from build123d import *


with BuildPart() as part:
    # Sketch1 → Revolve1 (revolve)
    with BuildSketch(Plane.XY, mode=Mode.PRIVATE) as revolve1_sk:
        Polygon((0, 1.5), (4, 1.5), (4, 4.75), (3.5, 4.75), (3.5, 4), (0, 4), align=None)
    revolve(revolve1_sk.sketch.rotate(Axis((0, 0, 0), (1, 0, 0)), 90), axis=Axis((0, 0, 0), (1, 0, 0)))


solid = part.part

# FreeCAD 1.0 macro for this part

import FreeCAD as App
import Part
import Sketcher
from FreeCAD import Vector
Q = App.Units.Quantity


def add_polygon(sketch, points):
    """Adds a closed chain of lines whose ends are joined by coincident constraints."""
    first, n = sketch.GeometryCount, len(points)
    for a, b in zip(points, points[1:] + points[:1]):
        sketch.addGeometry(Part.LineSegment(App.Vector(*a, 0), App.Vector(*b, 0)), False)
    for i in range(n):
        sketch.addConstraint(Sketcher.Constraint("Coincident", first + i, 2, first + (i + 1) % n, 1))

doc = App.newDocument("Part")
params = doc.addObject("Spreadsheet::Sheet", "Params")
for row, (alias, value) in enumerate([
    ("sketch1_width", "4 mm"),
    ("sketch1_width2", "0.5 mm"),
    ("sketch1_height", "2.5 mm"),
    ("sketch1_height2", "3.25 mm"),
    ("revolution_angle", "360 deg"),
], start=1):
    params.set(f"A{row}", alias)
    params.set(f"B{row}", "=" + value)
    params.setAlias(f"B{row}", alias)

body = doc.addObject("PartDesign::Body", "Body")

# Sketch on XY plane
sketch1 = body.newObject("Sketcher::SketchObject", "Sketch")
sketch1.AttachmentSupport = (doc.getObject("XY_Plane"), [""])
sketch1.MapMode = "FlatFace"
add_polygon(sketch1, [(0, 1.5), (4, 1.5), (4, 4.75), (3.5, 4.75), (3.5, 4), (0, 4)])  # lines 0-5
sketch1.addConstraint([
    Sketcher.Constraint("Horizontal", 0),
    Sketcher.Constraint("Vertical", 1),
    Sketcher.Constraint("Horizontal", 2),
    Sketcher.Constraint("Vertical", 3),
    Sketcher.Constraint("Horizontal", 4),
    Sketcher.Constraint("Vertical", 5),
    Sketcher.Constraint("PointOnObject", 4, 2, -2),
    Sketcher.Constraint("DistanceX", 0, 1, 0, 2, Q("4 mm")),
    Sketcher.Constraint("DistanceX", 2, 2, 2, 1, Q("0.5 mm")),
    Sketcher.Constraint("DistanceY", 5, 2, 5, 1, Q("2.5 mm")),
    Sketcher.Constraint("DistanceY", -1, 1, 3, 2, Q("4 mm")),
    Sketcher.Constraint("DistanceY", 1, 1, 1, 2, Q("3.25 mm")),
])
sketch1.setExpression("Constraints[13]", "Params.sketch1_width")
sketch1.setExpression("Constraints[14]", "Params.sketch1_width2")
sketch1.setExpression("Constraints[15]", "Params.sketch1_height")
sketch1.setExpression("Constraints[17]", "Params.sketch1_height2")
revolution = body.newObject("PartDesign::Revolution", "Revolution")
revolution.Profile = sketch1
revolution.ReferenceAxis = (sketch1, ["H_Axis"])
revolution.setExpression("Angle", "Params.revolution_angle")

doc.recompute()
